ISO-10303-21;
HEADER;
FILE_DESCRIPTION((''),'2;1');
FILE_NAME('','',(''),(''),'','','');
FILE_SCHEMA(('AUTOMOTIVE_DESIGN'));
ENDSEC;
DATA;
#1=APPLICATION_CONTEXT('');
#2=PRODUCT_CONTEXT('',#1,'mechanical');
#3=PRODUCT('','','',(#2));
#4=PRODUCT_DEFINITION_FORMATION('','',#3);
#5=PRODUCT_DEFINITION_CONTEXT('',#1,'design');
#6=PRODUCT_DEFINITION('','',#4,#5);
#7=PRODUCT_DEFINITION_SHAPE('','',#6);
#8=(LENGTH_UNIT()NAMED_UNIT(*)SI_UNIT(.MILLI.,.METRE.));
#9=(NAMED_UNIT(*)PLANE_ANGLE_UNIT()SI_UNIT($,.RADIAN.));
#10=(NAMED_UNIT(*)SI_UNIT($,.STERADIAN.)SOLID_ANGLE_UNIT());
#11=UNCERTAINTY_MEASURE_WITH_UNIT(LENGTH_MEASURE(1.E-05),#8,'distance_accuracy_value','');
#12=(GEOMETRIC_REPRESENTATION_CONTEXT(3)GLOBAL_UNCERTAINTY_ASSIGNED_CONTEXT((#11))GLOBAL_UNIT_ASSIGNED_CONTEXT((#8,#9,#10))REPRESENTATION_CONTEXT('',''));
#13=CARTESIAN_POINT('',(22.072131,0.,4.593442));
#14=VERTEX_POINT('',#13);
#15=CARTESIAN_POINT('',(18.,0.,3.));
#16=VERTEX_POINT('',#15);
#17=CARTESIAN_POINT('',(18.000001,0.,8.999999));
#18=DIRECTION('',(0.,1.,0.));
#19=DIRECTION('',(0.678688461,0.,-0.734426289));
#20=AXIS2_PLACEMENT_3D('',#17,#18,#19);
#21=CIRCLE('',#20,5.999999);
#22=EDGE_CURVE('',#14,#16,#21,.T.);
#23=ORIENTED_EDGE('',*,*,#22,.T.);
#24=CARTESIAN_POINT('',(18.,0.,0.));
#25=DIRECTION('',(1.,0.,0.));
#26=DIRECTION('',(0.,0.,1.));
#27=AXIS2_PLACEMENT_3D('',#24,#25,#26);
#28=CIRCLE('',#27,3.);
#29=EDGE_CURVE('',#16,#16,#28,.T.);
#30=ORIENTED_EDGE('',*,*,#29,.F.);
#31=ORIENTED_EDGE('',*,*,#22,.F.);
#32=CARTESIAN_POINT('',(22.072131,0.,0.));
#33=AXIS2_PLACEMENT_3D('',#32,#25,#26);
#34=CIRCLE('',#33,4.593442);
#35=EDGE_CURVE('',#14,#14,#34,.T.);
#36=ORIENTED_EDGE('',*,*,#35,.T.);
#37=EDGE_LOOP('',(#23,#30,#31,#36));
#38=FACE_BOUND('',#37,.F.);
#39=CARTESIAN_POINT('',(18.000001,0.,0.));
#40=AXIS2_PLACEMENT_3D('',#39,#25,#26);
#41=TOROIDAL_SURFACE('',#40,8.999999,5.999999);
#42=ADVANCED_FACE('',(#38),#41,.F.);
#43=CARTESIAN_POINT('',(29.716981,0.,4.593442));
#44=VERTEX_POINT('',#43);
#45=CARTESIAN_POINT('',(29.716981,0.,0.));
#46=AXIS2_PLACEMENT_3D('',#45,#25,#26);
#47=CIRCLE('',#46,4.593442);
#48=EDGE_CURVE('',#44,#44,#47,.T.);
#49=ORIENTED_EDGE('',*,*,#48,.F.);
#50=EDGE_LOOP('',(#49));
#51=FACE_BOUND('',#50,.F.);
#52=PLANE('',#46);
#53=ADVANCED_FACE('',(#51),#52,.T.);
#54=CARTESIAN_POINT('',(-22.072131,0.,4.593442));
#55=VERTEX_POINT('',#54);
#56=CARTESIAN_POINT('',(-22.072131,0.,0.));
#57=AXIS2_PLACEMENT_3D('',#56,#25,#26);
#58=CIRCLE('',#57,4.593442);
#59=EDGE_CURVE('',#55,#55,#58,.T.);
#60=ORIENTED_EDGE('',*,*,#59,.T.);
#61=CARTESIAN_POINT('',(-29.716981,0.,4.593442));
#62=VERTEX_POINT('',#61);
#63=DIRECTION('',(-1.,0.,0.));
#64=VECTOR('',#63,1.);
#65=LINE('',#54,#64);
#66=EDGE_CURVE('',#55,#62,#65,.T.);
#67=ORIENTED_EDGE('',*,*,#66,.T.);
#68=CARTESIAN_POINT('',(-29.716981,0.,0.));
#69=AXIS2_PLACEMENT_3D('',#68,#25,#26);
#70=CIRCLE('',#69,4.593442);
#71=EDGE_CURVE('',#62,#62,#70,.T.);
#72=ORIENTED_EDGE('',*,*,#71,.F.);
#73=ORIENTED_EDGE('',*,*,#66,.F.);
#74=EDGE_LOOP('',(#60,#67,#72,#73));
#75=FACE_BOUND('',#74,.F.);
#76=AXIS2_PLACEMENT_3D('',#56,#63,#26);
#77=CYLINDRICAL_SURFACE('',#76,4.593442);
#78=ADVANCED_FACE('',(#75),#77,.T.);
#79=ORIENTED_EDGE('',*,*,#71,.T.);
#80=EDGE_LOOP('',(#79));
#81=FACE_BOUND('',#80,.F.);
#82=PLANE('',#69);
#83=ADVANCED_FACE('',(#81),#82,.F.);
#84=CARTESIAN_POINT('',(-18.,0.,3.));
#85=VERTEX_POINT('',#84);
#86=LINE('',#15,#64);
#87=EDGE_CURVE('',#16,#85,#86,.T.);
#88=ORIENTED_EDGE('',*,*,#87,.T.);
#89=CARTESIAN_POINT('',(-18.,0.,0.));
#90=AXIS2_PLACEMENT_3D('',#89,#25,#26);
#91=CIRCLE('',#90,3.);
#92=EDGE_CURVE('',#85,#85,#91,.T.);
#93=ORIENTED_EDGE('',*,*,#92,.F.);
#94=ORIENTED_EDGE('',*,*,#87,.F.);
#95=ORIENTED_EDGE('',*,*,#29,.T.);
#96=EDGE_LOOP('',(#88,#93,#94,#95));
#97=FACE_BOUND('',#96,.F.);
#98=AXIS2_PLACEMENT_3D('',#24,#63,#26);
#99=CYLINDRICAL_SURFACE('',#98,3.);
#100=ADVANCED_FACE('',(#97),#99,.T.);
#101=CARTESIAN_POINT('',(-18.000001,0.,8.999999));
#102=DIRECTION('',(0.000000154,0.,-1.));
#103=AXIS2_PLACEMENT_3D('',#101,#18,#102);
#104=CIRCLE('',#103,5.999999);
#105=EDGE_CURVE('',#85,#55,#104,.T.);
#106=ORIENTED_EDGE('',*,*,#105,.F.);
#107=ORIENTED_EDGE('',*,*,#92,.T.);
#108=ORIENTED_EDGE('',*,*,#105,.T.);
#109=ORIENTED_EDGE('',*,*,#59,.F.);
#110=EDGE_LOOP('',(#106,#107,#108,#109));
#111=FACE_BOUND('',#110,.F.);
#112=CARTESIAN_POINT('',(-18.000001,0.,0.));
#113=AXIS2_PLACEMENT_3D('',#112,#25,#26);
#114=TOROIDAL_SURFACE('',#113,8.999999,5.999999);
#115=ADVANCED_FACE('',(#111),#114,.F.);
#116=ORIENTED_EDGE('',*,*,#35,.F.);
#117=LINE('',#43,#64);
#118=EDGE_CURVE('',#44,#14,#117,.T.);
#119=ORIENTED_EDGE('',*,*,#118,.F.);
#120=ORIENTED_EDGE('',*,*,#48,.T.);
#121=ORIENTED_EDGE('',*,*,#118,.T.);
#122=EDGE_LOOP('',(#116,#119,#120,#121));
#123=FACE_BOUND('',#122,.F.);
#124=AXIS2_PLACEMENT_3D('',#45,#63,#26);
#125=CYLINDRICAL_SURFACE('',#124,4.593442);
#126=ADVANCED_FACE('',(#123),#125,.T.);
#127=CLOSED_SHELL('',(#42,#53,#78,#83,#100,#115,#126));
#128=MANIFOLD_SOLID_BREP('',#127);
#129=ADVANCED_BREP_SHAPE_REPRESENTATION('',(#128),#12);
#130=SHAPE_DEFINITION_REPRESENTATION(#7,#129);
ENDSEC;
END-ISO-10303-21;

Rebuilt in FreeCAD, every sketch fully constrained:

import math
import FreeCAD as App
import Part
import Sketcher

V = App.Vector

doc = App.newDocument("Part")
body = doc.addObject("PartDesign::Body", "Body")

sketch1 = doc.addObject("Sketcher::SketchObject", "Sketch")
body.addObject(sketch1)
sketch1.AttachmentSupport = (doc.XZ_Plane, [""])
sketch1.MapMode = "FlatFace"
sketch1.addGeometry([
    Part.LineSegment(V(18, 3, 0), V(-18, 3, 0)),
    Part.ArcOfCircle(Part.Circle(V(-18.000001, 8.999999, 0), V(0, 0, 1), 5.999999), math.radians(-132.74124), math.radians(-89.999991)),
    Part.LineSegment(V(-22.072131, 4.593442, 0), V(-29.716981, 4.593442, 0)),
    Part.LineSegment(V(-29.716981, 4.593442, 0), V(-29.716981, 0, 0)),
    Part.LineSegment(V(-29.716981, 0, 0), V(29.716981, 0, 0)),
    Part.LineSegment(V(29.716981, 0, 0), V(29.716981, 4.593442, 0)),
    Part.LineSegment(V(29.716981, 4.593442, 0), V(22.072131, 4.593442, 0)),
    Part.ArcOfCircle(Part.Circle(V(18.000001, 8.999999, 0), V(0, 0, 1), 5.999999), math.radians(-90.000009), math.radians(-47.25876)),
], False)
sketch1.addConstraint([
    Sketcher.Constraint("Tangent", 0, 2, 1, 2),
    Sketcher.Constraint("Coincident", 1, 1, 2, 1),
    Sketcher.Constraint("Coincident", 2, 2, 3, 1),
    Sketcher.Constraint("Coincident", 3, 2, 4, 1),
    Sketcher.Constraint("Coincident", 4, 2, 5, 1),
    Sketcher.Constraint("Coincident", 5, 2, 6, 1),
    Sketcher.Constraint("Coincident", 6, 2, 7, 2),
    Sketcher.Constraint("Tangent", 7, 1, 0, 1),
    Sketcher.Constraint("Horizontal", 0),
    Sketcher.Constraint("Horizontal", 2),
    Sketcher.Constraint("Vertical", 3),
    Sketcher.Constraint("Horizontal", 4),
    Sketcher.Constraint("Vertical", 5),
    Sketcher.Constraint("Horizontal", 6),
    Sketcher.Constraint("Equal", 1, 7),
    Sketcher.Constraint("Symmetric", 3, 2, 4, 2, -1, 1),
    Sketcher.Constraint("Symmetric", 1, 1, 6, 2, -2),
    Sketcher.Constraint("Radius", 1, 5.999999),
    Sketcher.Constraint("DistanceX", 0, 2, 0, 1, 36.0),
    Sketcher.Constraint("DistanceY", -1, 1, 1, 3, 8.999999),
    Sketcher.Constraint("DistanceX", 2, 2, 2, 1, 7.64485),
    Sketcher.Constraint("DistanceY", 3, 2, 3, 1, 4.593442),
])
revolution = doc.addObject("PartDesign::Revolution", "Revolution")
body.addObject(revolution)
revolution.Profile = sketch1
revolution.ReferenceAxis = (sketch1, ["H_Axis"])
revolution.Angle = 360

doc.recompute()
